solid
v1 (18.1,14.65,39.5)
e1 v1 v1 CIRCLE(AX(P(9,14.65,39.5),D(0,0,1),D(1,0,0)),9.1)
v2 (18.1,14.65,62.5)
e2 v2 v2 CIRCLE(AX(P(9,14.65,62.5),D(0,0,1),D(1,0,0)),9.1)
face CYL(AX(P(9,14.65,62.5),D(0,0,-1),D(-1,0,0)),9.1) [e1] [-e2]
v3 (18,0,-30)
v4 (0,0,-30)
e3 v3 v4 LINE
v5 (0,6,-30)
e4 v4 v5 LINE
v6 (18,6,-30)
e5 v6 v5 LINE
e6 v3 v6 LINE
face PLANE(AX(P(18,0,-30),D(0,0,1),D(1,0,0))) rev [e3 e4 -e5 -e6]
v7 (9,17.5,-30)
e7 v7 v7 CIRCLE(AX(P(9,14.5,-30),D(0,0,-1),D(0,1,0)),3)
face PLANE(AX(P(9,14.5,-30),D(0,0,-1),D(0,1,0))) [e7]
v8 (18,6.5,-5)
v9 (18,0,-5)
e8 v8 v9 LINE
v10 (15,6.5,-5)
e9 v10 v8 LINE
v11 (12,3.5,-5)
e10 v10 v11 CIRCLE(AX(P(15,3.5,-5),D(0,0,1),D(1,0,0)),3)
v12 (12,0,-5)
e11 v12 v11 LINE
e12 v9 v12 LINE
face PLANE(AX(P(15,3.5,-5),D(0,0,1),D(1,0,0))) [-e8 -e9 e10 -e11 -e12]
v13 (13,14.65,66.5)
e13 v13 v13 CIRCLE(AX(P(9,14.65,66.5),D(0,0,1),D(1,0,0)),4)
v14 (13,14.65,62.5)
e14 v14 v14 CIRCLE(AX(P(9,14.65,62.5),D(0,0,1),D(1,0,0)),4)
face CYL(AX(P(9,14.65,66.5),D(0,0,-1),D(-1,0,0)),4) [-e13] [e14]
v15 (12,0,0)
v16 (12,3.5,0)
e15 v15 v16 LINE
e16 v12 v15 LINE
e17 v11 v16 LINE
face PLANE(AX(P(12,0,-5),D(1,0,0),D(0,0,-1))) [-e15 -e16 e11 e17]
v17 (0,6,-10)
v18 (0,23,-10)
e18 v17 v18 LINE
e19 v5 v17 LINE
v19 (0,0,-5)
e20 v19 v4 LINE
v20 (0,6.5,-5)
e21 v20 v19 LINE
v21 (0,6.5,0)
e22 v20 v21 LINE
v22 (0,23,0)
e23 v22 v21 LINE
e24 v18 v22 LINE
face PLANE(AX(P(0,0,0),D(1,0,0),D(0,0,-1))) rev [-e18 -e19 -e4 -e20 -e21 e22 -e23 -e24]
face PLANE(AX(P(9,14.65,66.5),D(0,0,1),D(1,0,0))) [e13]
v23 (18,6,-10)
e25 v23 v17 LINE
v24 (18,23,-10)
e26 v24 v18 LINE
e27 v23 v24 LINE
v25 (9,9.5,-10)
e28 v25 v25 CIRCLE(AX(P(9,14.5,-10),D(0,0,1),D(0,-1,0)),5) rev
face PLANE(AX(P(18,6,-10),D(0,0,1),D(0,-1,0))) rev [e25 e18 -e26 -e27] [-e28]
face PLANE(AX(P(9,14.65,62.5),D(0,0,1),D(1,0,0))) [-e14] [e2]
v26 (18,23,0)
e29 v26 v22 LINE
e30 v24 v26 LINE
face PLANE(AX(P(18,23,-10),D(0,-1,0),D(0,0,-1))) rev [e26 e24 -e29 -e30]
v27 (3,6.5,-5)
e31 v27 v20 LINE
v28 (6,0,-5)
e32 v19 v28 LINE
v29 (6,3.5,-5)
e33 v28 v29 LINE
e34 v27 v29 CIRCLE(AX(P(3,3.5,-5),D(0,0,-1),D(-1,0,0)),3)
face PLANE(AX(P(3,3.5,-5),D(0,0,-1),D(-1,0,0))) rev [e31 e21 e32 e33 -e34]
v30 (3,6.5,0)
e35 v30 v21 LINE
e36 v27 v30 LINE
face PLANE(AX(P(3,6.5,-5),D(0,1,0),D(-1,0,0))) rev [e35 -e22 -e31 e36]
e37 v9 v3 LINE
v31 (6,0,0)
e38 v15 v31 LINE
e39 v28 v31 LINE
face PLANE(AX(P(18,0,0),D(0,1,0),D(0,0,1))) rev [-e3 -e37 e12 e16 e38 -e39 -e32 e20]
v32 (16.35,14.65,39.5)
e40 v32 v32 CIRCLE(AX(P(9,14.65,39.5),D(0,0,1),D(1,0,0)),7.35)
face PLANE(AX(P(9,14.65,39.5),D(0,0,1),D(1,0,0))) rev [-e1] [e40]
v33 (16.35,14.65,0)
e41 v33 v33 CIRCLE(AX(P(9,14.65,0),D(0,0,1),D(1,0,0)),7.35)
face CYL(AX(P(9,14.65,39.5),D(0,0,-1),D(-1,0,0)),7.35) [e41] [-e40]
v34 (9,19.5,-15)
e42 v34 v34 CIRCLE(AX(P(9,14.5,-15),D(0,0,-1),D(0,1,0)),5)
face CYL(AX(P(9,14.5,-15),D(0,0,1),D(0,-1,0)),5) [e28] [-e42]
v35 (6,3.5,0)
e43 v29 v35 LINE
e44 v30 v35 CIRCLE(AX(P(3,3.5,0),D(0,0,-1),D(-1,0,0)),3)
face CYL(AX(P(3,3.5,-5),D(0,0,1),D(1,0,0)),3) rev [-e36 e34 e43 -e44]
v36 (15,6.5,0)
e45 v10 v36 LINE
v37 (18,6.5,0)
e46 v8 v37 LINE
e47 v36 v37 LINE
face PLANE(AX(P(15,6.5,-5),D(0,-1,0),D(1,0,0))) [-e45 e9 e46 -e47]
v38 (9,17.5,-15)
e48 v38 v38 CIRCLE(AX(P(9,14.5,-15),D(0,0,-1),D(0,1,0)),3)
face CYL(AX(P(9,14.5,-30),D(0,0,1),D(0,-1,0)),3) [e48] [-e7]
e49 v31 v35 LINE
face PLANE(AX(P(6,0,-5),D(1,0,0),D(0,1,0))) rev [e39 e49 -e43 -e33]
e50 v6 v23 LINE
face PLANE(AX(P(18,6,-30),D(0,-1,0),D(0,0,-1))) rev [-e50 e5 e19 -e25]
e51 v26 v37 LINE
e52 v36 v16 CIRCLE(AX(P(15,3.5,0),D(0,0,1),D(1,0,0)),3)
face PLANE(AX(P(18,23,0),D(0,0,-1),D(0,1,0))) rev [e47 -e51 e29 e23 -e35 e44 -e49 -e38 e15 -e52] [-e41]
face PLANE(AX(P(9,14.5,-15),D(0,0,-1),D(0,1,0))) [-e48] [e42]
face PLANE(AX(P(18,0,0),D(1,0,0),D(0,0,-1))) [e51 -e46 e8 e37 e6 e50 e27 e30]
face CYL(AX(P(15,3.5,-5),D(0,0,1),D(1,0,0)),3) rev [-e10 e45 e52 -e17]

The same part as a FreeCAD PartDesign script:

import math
import FreeCAD as App
import Part
import Sketcher
from FreeCAD import Vector


def add_polygon(sketch, points):
    """Adds a closed chain of lines whose ends are joined by coincident constraints."""
    first, n = sketch.GeometryCount, len(points)
    for a, b in zip(points, points[1:] + points[:1]):
        sketch.addGeometry(Part.LineSegment(App.Vector(*a, 0), App.Vector(*b, 0)), False)
    for i in range(n):
        sketch.addConstraint(Sketcher.Constraint("Coincident", first + i, 2, first + (i + 1) % n, 1))

doc = App.newDocument("Part")
body = doc.addObject("PartDesign::Body", "Body")

sketch1 = body.newObject("Sketcher::SketchObject", "Sketch")
sketch1.AttachmentSupport = (doc.getObject("YZ_Plane"), [""])
sketch1.MapMode = "FlatFace"
add_polygon(sketch1, [(0, 0), (0, -30), (6, -30), (6, -10), (23, -10), (23, 0)])
sketch1.addConstraint([
    Sketcher.Constraint("Vertical", 0),
    Sketcher.Constraint("Horizontal", 1),
    Sketcher.Constraint("Vertical", 2),
    Sketcher.Constraint("Horizontal", 3),
    Sketcher.Constraint("Vertical", 4),
    Sketcher.Constraint("Horizontal", 5),
    Sketcher.Constraint("Coincident", 5, 2, -1, 1),
    Sketcher.Constraint("DistanceX", 1, 1, 1, 2, 6.0),
    Sketcher.Constraint("DistanceX", 3, 1, 3, 2, 17.0),
    Sketcher.Constraint("DistanceY", 0, 2, 0, 1, 30.0),
    Sketcher.Constraint("DistanceY", 2, 1, 2, 2, 20.0),
])
pad1 = body.newObject("PartDesign::Pad", "Pad")
pad1.Profile = sketch1
pad1.Length = 18

sketch2 = body.newObject("Sketcher::SketchObject", "Sketch001")
sketch2.AttachmentSupport = (doc.getObject("XY_Plane"), [""])
sketch2.MapMode = "FlatFace"
sketch2.addGeometry([
    Part.LineSegment(Vector(12, 3.5, 0), Vector(12, 0, 0)),
    Part.LineSegment(Vector(12, 0, 0), Vector(18, 0, 0)),
    Part.LineSegment(Vector(18, 0, 0), Vector(18, 6.5, 0)),
    Part.LineSegment(Vector(18, 6.5, 0), Vector(15, 6.5, 0)),
    Part.ArcOfCircle(Part.Circle(Vector(15, 3.5, 0), Vector(0, 0, 1), 3), math.radians(90), math.radians(180)),
    Part.LineSegment(Vector(6, 0, 0), Vector(6, 3.5, 0)),
    Part.ArcOfCircle(Part.Circle(Vector(3, 3.5, 0), Vector(0, 0, 1), 3), math.radians(0), math.radians(90)),
    Part.LineSegment(Vector(3, 6.5, 0), Vector(0, 6.5, 0)),
    Part.LineSegment(Vector(0, 6.5, 0), Vector(0, 0, 0)),
    Part.LineSegment(Vector(0, 0, 0), Vector(6, 0, 0)),
], False)
sketch2.addConstraint([
    Sketcher.Constraint("Coincident", 0, 2, 1, 1),
    Sketcher.Constraint("Coincident", 1, 2, 2, 1),
    Sketcher.Constraint("Coincident", 2, 2, 3, 1),
    Sketcher.Constraint("Tangent", 3, 2, 4, 1),
    Sketcher.Constraint("Tangent", 4, 2, 0, 1),
    Sketcher.Constraint("Tangent", 5, 2, 6, 1),
    Sketcher.Constraint("Tangent", 6, 2, 7, 1),
    Sketcher.Constraint("Coincident", 7, 2, 8, 1),
    Sketcher.Constraint("Coincident", 8, 2, 9, 1),
    Sketcher.Constraint("Coincident", 9, 2, 5, 1),
    Sketcher.Constraint("Vertical", 0),
    Sketcher.Constraint("Horizontal", 1),
    Sketcher.Constraint("Vertical", 2),
    Sketcher.Constraint("Horizontal", 3),
    Sketcher.Constraint("Vertical", 5),
    Sketcher.Constraint("Horizontal", 7),
    Sketcher.Constraint("Vertical", 8),
    Sketcher.Constraint("Horizontal", 9),
    Sketcher.Constraint("Coincident", 8, 2, -1, 1),
    Sketcher.Constraint("Equal", 4, 6),
    Sketcher.Constraint("PointOnObject", 0, 2, -1),
    Sketcher.Constraint("Horizontal", 4, 3, 6, 3),
    Sketcher.Constraint("Equal", 3, 7),
    Sketcher.Constraint("Radius", 4, 3.0),
    Sketcher.Constraint("DistanceX", 1, 1, 1, 2, 6.0),
    Sketcher.Constraint("DistanceY", 0, 2, 0, 1, 3.5),
    Sketcher.Constraint("DistanceX", -1, 1, 4, 3, 15.0),
])
pocket1 = body.newObject("PartDesign::Pocket", "Pocket")
pocket1.Profile = sketch2
pocket1.Length = 5

sketch3 = body.newObject("Sketcher::SketchObject", "Sketch002")
sketch3.AttachmentSupport = (doc.getObject("XY_Plane"), [""])
sketch3.MapMode = "FlatFace"
sketch3.AttachmentOffset = App.Placement(Vector(0, 0, -10), App.Rotation())
sketch3.addGeometry(Part.Circle(Vector(9, 14, 0), Vector(0, 0, 1), 5), False)
sketch3.addConstraint([
    Sketcher.Constraint("Diameter", 0, 10.0),
    Sketcher.Constraint("DistanceX", -1, 1, 0, 3, 9.0),
    Sketcher.Constraint("DistanceY", -1, 1, 0, 3, 14.5),
])
pad2 = body.newObject("PartDesign::Pad", "Pad001")
pad2.Profile = sketch3
pad2.Length = 5
pad2.Reversed = True

sketch4 = body.newObject("Sketcher::SketchObject", "Sketch003")
sketch4.AttachmentSupport = (doc.getObject("XY_Plane"), [""])
sketch4.MapMode = "FlatFace"
sketch4.AttachmentOffset = App.Placement(Vector(0, 0, -15), App.Rotation())
sketch4.addGeometry(Part.Circle(Vector(9, 14.5, 0), Vector(0, 0, 1), 3), False)
sketch4.addConstraint([
    Sketcher.Constraint("Diameter", 0, 6.0),
    Sketcher.Constraint("DistanceX", -1, 1, 0, 3, 9.0),
    Sketcher.Constraint("DistanceY", -1, 1, 0, 3, 14.5),
])
pad3 = body.newObject("PartDesign::Pad", "Pad002")
pad3.Profile = sketch4
pad3.Length = 15
pad3.Reversed = True

sketch5 = body.newObject("Sketcher::SketchObject", "Sketch004")
sketch5.AttachmentSupport = (doc.getObject("XY_Plane"), [""])
sketch5.MapMode = "FlatFace"
sketch5.addGeometry(Part.Circle(Vector(9, 15, 0), Vector(0, 0, 1), 7), False)
sketch5.addConstraint([
    Sketcher.Constraint("Diameter", 0, 14.7),
    Sketcher.Constraint("DistanceX", -1, 1, 0, 3, 9.0),
    Sketcher.Constraint("DistanceY", -1, 1, 0, 3, 14.65),
])
pad4 = body.newObject("PartDesign::Pad", "Pad003")
pad4.Profile = sketch5
pad4.Length = 39.5

sketch6 = body.newObject("Sketcher::SketchObject", "Sketch005")
sketch6.AttachmentSupport = (doc.getObject("XY_Plane"), [""])
sketch6.MapMode = "FlatFace"
sketch6.AttachmentOffset = App.Placement(Vector(0, 0, 39.5), App.Rotation())
sketch6.addGeometry(Part.Circle(Vector(9, 15, 0), Vector(0, 0, 1), 9), False)
sketch6.addConstraint([
    Sketcher.Constraint("Diameter", 0, 18.2),
    Sketcher.Constraint("DistanceX", -1, 1, 0, 3, 9.0),
    Sketcher.Constraint("DistanceY", -1, 1, 0, 3, 14.65),
])
pad5 = body.newObject("PartDesign::Pad", "Pad004")
pad5.Profile = sketch6
pad5.Length = 23

sketch7 = body.newObject("Sketcher::SketchObject", "Sketch006")
sketch7.AttachmentSupport = (doc.getObject("XY_Plane"), [""])
sketch7.MapMode = "FlatFace"
sketch7.AttachmentOffset = App.Placement(Vector(0, 0, 62.5), App.Rotation())
sketch7.addGeometry(Part.Circle(Vector(9, 14.7, 0), Vector(0, 0, 1), 4), False)
sketch7.addConstraint([
    Sketcher.Constraint("Diameter", 0, 8.0),
    Sketcher.Constraint("DistanceX", -1, 1, 0, 3, 9.0),
    Sketcher.Constraint("DistanceY", -1, 1, 0, 3, 14.65),
])
pad6 = body.newObject("PartDesign::Pad", "Pad005")
pad6.Profile = sketch7
pad6.Length = 4

doc.recompute()
